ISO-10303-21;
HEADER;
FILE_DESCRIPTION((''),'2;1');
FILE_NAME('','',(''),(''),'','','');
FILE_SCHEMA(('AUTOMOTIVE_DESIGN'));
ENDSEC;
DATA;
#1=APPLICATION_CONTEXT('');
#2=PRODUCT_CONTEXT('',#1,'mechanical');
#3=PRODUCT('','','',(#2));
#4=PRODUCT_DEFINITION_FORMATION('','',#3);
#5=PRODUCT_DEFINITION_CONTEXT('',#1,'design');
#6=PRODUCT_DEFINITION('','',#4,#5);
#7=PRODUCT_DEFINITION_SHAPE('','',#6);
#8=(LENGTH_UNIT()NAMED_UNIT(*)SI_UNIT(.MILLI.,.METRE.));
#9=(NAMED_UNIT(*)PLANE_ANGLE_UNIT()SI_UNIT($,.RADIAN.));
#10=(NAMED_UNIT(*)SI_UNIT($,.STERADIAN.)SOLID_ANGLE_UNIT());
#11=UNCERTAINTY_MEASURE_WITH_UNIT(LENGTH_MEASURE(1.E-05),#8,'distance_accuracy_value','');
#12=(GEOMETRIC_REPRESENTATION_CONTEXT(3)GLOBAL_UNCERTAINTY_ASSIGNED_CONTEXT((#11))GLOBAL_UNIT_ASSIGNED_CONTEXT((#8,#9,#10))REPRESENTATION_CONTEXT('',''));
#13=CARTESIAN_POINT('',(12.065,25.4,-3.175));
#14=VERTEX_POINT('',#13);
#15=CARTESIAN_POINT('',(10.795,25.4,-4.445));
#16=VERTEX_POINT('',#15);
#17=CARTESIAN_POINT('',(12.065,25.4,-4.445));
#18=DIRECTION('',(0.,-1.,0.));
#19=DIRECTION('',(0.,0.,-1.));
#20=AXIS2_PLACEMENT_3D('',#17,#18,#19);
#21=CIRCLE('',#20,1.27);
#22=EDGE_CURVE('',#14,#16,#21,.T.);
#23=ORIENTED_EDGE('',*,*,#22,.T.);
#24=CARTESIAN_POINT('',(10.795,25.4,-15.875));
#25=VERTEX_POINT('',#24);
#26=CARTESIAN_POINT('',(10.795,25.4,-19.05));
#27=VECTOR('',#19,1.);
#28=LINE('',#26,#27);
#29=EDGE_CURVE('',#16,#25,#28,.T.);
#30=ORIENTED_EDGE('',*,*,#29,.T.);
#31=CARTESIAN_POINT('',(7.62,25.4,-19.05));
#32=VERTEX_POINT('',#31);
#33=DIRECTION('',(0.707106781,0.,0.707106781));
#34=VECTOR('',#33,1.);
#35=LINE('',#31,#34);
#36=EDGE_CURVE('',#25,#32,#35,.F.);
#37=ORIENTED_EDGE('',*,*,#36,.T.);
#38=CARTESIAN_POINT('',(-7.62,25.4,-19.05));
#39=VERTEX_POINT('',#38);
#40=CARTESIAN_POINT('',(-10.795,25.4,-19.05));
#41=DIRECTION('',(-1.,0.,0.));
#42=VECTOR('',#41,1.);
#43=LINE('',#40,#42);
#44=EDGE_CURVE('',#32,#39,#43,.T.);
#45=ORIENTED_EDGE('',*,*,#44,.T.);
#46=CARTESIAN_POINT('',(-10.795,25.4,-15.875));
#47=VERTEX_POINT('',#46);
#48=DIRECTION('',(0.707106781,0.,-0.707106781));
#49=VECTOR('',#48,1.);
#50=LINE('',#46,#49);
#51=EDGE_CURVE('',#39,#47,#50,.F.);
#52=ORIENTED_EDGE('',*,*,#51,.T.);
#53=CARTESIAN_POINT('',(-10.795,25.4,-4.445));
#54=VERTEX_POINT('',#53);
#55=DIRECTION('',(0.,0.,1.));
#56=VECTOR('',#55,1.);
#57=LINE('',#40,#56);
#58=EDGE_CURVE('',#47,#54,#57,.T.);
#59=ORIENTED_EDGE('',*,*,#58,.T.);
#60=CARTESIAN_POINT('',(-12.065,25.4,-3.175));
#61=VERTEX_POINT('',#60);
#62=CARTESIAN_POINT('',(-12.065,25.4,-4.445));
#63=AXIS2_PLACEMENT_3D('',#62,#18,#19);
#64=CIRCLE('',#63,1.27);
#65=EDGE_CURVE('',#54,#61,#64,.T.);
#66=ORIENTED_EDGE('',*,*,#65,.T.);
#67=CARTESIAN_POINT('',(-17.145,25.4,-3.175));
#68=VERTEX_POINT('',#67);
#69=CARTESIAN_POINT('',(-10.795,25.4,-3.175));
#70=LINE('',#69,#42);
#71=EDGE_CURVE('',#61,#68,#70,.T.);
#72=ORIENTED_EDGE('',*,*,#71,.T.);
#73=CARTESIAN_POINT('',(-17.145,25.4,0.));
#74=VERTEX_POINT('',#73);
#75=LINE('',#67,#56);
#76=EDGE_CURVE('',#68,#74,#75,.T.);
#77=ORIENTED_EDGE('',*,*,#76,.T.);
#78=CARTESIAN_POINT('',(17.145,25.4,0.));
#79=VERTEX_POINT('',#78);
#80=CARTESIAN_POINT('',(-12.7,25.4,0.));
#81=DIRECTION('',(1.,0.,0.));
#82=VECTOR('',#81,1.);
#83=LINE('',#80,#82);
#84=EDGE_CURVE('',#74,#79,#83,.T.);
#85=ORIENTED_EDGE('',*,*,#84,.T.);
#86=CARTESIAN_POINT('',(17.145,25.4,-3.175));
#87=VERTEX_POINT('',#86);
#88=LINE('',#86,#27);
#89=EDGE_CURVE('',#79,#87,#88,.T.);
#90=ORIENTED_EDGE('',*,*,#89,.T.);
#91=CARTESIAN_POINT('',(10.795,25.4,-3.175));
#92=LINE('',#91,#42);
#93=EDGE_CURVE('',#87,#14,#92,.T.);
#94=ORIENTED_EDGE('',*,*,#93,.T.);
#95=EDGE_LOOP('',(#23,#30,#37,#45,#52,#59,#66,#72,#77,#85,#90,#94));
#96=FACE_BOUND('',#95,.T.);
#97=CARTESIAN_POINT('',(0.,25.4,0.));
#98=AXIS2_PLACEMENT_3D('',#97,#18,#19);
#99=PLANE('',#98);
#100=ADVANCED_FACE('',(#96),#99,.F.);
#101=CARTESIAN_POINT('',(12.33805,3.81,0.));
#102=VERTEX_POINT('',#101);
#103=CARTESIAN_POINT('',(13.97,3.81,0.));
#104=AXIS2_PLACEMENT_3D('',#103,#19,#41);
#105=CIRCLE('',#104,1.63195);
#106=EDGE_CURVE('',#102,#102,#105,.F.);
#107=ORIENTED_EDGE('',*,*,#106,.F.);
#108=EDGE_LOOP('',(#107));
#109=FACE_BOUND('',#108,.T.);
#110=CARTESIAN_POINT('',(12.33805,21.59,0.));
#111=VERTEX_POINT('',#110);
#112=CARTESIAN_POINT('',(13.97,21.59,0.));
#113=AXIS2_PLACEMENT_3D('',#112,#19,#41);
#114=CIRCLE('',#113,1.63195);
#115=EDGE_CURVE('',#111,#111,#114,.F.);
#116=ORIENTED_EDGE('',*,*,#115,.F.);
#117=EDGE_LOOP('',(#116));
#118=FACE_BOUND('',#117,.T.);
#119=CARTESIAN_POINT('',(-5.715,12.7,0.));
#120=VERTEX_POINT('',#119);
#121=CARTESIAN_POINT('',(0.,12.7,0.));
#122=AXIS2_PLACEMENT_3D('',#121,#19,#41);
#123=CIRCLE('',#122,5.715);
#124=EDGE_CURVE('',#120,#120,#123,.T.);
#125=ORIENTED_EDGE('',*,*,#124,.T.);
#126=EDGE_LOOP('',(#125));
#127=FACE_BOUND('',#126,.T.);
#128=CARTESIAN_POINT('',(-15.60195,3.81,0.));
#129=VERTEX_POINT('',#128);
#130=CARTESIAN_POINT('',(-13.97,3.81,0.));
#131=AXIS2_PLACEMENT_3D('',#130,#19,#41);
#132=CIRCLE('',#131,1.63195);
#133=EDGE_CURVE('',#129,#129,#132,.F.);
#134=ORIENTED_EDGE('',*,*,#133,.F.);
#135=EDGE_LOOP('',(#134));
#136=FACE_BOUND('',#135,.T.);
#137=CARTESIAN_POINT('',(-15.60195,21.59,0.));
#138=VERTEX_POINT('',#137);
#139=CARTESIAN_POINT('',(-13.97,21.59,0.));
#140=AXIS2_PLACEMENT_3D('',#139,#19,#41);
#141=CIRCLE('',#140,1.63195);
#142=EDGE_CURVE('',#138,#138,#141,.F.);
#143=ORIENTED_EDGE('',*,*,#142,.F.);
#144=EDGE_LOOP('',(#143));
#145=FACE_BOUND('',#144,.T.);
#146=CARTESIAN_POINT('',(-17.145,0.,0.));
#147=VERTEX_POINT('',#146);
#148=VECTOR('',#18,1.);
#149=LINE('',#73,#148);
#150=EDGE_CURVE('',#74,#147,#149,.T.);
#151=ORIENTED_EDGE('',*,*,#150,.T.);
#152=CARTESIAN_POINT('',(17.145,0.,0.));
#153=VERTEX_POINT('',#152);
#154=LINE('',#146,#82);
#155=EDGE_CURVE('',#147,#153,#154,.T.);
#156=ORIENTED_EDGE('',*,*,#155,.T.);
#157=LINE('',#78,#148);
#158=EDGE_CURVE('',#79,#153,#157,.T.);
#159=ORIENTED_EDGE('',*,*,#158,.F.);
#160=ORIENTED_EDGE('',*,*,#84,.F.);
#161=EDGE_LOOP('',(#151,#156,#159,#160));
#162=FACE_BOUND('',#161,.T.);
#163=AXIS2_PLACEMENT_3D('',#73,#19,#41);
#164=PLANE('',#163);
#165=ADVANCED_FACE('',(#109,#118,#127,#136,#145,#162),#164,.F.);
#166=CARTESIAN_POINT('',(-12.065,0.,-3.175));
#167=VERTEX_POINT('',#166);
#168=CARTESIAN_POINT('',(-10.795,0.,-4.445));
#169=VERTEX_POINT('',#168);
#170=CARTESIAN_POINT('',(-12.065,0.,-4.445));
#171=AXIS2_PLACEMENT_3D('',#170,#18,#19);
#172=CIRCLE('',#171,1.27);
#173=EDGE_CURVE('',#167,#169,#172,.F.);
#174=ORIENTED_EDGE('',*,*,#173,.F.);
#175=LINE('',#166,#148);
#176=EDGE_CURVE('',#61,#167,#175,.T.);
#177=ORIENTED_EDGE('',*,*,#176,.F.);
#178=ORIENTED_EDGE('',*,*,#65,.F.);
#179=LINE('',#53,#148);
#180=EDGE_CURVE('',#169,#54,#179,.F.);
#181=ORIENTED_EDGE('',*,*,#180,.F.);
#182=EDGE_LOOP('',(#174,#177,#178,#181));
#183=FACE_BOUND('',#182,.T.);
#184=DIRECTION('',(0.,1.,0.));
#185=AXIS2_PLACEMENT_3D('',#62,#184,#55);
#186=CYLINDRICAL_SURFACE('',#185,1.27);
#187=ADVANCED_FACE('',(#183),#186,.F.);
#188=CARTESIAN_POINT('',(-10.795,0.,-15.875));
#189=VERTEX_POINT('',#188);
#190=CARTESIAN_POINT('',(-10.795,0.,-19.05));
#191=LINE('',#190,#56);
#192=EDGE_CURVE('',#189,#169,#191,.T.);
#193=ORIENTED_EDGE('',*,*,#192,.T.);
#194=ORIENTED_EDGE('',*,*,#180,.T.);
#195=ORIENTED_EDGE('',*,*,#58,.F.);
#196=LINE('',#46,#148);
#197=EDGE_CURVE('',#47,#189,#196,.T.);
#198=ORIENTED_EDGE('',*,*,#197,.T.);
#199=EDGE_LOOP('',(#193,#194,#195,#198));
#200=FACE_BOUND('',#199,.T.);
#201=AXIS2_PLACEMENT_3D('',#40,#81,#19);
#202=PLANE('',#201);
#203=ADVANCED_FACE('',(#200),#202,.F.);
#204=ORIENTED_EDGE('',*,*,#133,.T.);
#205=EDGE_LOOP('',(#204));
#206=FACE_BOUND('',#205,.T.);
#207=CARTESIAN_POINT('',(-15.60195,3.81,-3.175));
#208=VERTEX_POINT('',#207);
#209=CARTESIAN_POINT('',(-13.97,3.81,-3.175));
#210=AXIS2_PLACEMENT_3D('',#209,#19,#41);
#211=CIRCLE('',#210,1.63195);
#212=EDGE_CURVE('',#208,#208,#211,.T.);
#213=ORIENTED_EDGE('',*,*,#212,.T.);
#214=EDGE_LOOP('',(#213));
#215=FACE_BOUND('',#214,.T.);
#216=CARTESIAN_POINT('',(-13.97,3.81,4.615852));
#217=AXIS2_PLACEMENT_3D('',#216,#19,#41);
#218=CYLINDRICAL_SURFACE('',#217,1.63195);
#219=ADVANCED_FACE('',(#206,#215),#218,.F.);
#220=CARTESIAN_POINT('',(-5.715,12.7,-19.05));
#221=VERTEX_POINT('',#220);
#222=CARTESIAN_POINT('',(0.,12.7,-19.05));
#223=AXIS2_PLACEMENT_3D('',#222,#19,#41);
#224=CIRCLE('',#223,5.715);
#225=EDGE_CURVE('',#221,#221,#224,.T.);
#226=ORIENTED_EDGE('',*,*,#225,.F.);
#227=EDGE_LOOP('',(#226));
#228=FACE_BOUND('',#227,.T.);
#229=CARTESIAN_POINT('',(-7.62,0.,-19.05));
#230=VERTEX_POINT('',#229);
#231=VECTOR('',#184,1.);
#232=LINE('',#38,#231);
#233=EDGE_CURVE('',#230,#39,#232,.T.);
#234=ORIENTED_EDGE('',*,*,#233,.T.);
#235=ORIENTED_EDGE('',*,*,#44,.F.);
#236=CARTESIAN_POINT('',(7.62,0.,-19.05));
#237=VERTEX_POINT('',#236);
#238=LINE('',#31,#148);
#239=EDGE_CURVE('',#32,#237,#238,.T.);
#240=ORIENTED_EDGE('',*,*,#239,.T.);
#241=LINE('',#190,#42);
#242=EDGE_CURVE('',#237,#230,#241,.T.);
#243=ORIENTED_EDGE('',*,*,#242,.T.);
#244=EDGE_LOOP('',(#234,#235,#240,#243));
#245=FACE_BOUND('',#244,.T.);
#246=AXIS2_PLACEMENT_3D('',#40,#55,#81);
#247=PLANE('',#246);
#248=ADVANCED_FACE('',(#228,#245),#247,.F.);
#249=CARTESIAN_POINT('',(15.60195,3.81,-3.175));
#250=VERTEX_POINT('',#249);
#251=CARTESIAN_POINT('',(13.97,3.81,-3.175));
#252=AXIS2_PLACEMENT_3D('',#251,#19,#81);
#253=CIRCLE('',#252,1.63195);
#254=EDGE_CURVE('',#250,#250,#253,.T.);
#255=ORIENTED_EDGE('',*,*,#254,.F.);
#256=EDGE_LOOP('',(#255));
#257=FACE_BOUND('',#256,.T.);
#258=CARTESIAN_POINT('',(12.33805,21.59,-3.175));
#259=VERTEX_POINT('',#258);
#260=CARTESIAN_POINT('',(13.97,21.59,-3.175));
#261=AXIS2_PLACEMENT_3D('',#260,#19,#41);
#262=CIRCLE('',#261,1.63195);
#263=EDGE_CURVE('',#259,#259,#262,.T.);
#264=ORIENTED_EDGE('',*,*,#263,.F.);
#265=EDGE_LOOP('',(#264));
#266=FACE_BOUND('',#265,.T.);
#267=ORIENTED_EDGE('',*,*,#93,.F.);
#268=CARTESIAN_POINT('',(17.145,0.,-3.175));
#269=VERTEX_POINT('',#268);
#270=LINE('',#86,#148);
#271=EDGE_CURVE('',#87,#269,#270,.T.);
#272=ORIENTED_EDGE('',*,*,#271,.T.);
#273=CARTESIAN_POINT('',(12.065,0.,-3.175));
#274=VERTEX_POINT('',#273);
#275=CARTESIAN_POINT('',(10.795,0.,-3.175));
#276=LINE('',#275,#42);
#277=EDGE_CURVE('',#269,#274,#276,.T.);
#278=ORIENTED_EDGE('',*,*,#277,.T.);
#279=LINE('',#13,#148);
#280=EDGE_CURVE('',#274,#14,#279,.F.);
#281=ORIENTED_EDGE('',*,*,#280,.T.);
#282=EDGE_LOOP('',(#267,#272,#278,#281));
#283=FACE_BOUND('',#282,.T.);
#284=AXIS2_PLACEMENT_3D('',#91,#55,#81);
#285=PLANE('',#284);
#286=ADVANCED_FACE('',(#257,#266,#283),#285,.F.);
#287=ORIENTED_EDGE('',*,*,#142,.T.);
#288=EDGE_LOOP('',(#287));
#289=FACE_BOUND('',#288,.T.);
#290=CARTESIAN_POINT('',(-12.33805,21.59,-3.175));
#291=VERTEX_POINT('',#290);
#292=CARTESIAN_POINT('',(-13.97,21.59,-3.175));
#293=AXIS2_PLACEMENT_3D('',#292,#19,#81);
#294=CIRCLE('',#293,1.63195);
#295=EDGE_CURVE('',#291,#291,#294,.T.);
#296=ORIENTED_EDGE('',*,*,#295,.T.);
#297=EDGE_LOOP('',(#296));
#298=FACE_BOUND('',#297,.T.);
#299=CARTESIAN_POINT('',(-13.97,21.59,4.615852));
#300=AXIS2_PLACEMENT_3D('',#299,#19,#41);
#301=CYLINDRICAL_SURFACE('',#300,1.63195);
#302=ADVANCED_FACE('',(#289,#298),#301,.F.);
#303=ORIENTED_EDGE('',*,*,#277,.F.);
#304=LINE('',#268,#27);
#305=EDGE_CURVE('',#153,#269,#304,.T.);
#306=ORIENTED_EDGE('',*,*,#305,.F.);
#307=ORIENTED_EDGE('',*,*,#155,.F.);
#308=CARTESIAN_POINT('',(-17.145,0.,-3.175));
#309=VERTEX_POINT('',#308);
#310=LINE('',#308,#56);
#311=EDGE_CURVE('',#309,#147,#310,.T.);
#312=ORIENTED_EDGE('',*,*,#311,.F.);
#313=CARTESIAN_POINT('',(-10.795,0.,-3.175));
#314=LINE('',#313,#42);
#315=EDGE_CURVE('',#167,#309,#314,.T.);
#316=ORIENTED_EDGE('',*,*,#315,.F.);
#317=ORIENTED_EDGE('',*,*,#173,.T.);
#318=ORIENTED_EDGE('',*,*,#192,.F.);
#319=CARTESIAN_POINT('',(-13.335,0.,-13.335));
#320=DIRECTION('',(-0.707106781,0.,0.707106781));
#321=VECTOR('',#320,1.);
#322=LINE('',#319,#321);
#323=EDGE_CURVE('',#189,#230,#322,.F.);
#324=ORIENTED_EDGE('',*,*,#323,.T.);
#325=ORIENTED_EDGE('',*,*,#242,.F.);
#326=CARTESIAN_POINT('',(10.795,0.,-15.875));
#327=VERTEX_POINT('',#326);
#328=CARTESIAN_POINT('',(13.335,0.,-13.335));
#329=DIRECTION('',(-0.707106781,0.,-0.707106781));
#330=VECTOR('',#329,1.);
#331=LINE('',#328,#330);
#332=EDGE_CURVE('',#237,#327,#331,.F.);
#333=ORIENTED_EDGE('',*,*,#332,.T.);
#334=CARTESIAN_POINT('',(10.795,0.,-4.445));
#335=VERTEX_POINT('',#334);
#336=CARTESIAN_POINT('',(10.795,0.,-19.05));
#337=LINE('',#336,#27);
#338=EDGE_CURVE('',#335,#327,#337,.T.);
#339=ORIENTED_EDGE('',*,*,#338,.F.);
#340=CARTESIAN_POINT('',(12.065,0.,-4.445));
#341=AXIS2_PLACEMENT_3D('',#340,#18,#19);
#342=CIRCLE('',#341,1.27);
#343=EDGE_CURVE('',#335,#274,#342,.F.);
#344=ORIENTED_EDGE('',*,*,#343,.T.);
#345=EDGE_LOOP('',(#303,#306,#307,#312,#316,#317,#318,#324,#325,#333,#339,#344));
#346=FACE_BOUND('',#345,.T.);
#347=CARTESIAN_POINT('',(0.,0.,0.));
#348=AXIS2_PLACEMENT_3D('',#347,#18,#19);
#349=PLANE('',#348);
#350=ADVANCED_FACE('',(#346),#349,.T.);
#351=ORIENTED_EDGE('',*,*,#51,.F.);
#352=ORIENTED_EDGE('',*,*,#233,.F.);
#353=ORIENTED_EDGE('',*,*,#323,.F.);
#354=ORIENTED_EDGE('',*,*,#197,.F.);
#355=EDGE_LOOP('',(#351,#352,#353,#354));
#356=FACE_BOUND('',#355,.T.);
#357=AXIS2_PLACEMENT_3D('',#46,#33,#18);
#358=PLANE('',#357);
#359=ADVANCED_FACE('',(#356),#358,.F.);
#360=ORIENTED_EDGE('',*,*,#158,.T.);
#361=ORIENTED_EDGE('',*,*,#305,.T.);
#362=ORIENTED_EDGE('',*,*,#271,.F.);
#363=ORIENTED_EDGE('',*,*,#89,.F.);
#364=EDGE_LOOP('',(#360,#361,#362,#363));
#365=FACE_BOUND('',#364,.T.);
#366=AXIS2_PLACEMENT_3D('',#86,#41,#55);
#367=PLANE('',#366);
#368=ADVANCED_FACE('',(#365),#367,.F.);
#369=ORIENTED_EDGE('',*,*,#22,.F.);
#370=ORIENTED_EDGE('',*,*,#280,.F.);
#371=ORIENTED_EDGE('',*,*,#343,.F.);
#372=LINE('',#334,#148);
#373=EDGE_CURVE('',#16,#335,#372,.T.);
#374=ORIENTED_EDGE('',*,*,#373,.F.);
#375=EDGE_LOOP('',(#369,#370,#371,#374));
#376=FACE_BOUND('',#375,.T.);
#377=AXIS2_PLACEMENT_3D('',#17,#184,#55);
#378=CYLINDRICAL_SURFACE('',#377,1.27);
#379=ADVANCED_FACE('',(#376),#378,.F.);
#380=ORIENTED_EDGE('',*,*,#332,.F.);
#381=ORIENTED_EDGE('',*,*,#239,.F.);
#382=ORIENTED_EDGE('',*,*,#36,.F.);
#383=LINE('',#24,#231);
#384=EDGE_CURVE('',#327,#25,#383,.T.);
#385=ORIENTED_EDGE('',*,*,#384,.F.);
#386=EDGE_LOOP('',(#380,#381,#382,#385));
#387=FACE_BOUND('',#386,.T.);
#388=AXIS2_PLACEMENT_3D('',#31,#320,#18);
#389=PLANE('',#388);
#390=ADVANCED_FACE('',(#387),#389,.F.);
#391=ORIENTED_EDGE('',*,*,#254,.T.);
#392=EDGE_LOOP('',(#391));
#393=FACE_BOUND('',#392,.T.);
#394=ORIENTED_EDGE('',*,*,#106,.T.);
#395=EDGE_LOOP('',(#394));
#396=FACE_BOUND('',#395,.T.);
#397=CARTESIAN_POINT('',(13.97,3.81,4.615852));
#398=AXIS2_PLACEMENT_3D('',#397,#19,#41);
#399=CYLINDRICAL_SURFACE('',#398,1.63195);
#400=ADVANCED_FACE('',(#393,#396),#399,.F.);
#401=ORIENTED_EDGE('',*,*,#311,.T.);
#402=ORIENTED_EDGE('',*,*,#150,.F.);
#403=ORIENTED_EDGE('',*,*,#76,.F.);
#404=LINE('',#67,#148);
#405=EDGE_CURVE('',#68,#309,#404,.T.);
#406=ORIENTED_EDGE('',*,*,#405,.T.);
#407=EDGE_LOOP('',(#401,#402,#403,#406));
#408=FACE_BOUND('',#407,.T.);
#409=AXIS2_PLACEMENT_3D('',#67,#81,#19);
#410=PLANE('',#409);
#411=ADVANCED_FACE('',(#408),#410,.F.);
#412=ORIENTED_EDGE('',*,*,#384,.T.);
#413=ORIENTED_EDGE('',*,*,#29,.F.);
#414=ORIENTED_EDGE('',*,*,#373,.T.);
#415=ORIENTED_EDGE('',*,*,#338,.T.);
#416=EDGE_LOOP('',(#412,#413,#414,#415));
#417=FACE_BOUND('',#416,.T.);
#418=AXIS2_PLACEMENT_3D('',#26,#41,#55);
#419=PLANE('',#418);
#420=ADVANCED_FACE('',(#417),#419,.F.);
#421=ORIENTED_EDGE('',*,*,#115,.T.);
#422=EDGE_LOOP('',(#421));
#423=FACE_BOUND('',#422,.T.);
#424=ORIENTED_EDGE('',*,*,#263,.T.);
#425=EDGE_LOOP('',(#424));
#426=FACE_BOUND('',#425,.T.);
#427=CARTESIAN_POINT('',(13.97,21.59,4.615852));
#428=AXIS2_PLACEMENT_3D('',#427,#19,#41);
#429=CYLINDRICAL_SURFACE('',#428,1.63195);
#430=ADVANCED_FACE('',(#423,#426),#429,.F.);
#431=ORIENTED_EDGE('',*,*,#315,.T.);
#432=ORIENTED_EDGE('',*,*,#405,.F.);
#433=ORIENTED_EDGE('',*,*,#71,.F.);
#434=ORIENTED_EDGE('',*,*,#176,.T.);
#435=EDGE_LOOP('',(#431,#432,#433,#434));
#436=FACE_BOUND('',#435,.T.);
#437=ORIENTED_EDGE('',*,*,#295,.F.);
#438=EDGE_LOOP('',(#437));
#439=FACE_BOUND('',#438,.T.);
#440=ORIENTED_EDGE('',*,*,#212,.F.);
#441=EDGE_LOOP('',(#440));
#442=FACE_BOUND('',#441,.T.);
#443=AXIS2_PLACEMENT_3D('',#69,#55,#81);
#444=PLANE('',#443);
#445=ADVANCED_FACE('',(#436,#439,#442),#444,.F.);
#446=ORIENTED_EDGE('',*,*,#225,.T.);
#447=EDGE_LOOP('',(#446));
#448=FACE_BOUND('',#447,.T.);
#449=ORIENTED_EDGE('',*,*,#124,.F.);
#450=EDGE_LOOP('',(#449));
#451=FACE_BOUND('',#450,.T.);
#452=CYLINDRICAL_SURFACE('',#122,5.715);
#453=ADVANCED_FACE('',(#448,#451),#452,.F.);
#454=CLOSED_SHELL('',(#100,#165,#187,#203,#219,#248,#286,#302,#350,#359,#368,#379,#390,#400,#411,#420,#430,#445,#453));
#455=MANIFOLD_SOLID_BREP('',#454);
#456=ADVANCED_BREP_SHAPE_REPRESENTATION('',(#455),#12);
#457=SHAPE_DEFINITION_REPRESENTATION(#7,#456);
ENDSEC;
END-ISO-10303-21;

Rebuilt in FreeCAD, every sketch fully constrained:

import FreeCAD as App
import Part
import Sketcher
Q = App.Units.Quantity


def edges_at(feature, points):
    """Names of the edges that pass closest to the given points."""
    edges = feature.Shape.Edges
    near = lambda p: min(range(len(edges)), key=lambda i: edges[i].distToShape(Part.Vertex(*p))[0])
    return sorted({f"Edge{near(p) + 1}" for p in points})


def add_polygon(sketch, points):
    """Adds a closed chain of lines whose ends are joined by coincident constraints."""
    first, n = sketch.GeometryCount, len(points)
    for a, b in zip(points, points[1:] + points[:1]):
        sketch.addGeometry(Part.LineSegment(App.Vector(*a, 0), App.Vector(*b, 0)), False)
    for i in range(n):
        sketch.addConstraint(Sketcher.Constraint("Coincident", first + i, 2, first + (i + 1) % n, 1))

doc = App.newDocument("Part")
body = doc.addObject("PartDesign::Body", "Body")

# Sketch on XZ plane
sketch1 = body.newObject("Sketcher::SketchObject", "Sketch")
sketch1.AttachmentSupport = (doc.getObject("XZ_Plane"), [""])
sketch1.MapMode = "FlatFace"
add_polygon(sketch1, [(-10.8, -3.2), (-17.1, -3.2), (-17.1, 0), (17.1, 0), (17.1, -3.2), (10.8, -3.2), (10.8, -19.1), (-10.8, -19.1)])  # lines 0-7
sketch1.addConstraint([
    Sketcher.Constraint("Horizontal", 0),
    Sketcher.Constraint("Vertical", 1),
    Sketcher.Constraint("Horizontal", 2),
    Sketcher.Constraint("Vertical", 3),
    Sketcher.Constraint("Horizontal", 4),
    Sketcher.Constraint("Vertical", 5),
    Sketcher.Constraint("Horizontal", 6),
    Sketcher.Constraint("Vertical", 7),
    Sketcher.Constraint("Symmetric", 1, 2, 2, 2, -1, 1),
    Sketcher.Constraint("Symmetric", 4, 2, 7, 2, -2),
    Sketcher.Constraint("DistanceX", 0, 2, 0, 1, Q("0.25 in")),
    Sketcher.Constraint("DistanceX", 2, 1, 2, 2, Q("1.35 in")),
    Sketcher.Constraint("DistanceY", 1, 1, 1, 2, Q("0.125 in")),
    Sketcher.Constraint("DistanceY", 5, 2, 5, 1, Q("0.625 in")),
])
pad1 = body.newObject("PartDesign::Pad", "Pad")
pad1.Profile = sketch1
pad1.Length = Q("1 in")
pad1.Reversed = True
doc.recompute()

chamfer = body.newObject("PartDesign::Chamfer", "Chamfer")
chamfer.Base = (pad1, edges_at(pad1, [(-10.795, 12.7, -19.05), (10.795, 12.7, -19.05)]))
chamfer.Size = Q("0.125 in")

# Sketch on XY plane
sketch2 = body.newObject("Sketcher::SketchObject", "Sketch001")
sketch2.AttachmentSupport = (doc.getObject("XY_Plane"), [""])
sketch2.MapMode = "FlatFace"
sketch2.AttachmentOffset = App.Placement(App.Vector(0, 0, -0.125 * 25.4), App.Rotation())
sketch2.addGeometry([
    Part.Circle(App.Vector(14, 21.6, 0), App.Vector(0, 0, 1), 1.6),
    Part.Circle(App.Vector(14, 3.8, 0), App.Vector(0, 0, 1), 1.6),
    Part.Circle(App.Vector(-14, 3.8, 0), App.Vector(0, 0, 1), 1.6),
    Part.Circle(App.Vector(-14, 21.6, 0), App.Vector(0, 0, 1), 1.6),
], False)
sketch2.addConstraint([
    Sketcher.Constraint("Equal", 0, 1),
    Sketcher.Constraint("Equal", 1, 2),
    Sketcher.Constraint("Equal", 2, 3),
    Sketcher.Constraint("Symmetric", 1, 3, 2, 3, -2),
    Sketcher.Constraint("Symmetric", 0, 3, 3, 3, -2),
    Sketcher.Constraint("Vertical", 0, 3, 1, 3),
    Sketcher.Constraint("Diameter", 0, Q("0.1285 in")),
    Sketcher.Constraint("DistanceY", 1, 3, 0, 3, Q("0.7 in")),
    Sketcher.Constraint("DistanceX", 2, 3, 1, 3, Q("1.1 in")),
    Sketcher.Constraint("DistanceY", -1, 1, 0, 3, Q("0.85 in")),
])
pocket1 = body.newObject("PartDesign::Pocket", "Pocket")
pocket1.Profile = sketch2
pocket1.Length = Q("0.125 in")
pocket1.Reversed = True

# Sketch on XY plane
sketch3 = body.newObject("Sketcher::SketchObject", "Sketch002")
sketch3.AttachmentSupport = (doc.getObject("XY_Plane"), [""])
sketch3.MapMode = "FlatFace"
sketch3.AttachmentOffset = App.Placement(App.Vector(0, 0, -0.75 * 25.4), App.Rotation())
sketch3.addGeometry(Part.Circle(App.Vector(0, 13, 0), App.Vector(0, 0, 1), 6), False)
sketch3.addConstraint([
    Sketcher.Constraint("PointOnObject", 0, 3, -2),
    Sketcher.Constraint("Diameter", 0, Q("0.45 in")),
    Sketcher.Constraint("DistanceY", -1, 1, 0, 3, Q("0.5 in")),
])
pocket2 = body.newObject("PartDesign::Pocket", "Pocket001")
pocket2.Profile = sketch3
pocket2.Type = "ThroughAll"
pocket2.Reversed = True
doc.recompute()

fillet = body.newObject("PartDesign::Fillet", "Fillet")
fillet.Base = (pocket2, edges_at(pocket2, [(-10.795, 12.7, -3.175), (10.795, 12.7, -3.175)]))
fillet.Radius = Q("0.05 in")

doc.recompute()
